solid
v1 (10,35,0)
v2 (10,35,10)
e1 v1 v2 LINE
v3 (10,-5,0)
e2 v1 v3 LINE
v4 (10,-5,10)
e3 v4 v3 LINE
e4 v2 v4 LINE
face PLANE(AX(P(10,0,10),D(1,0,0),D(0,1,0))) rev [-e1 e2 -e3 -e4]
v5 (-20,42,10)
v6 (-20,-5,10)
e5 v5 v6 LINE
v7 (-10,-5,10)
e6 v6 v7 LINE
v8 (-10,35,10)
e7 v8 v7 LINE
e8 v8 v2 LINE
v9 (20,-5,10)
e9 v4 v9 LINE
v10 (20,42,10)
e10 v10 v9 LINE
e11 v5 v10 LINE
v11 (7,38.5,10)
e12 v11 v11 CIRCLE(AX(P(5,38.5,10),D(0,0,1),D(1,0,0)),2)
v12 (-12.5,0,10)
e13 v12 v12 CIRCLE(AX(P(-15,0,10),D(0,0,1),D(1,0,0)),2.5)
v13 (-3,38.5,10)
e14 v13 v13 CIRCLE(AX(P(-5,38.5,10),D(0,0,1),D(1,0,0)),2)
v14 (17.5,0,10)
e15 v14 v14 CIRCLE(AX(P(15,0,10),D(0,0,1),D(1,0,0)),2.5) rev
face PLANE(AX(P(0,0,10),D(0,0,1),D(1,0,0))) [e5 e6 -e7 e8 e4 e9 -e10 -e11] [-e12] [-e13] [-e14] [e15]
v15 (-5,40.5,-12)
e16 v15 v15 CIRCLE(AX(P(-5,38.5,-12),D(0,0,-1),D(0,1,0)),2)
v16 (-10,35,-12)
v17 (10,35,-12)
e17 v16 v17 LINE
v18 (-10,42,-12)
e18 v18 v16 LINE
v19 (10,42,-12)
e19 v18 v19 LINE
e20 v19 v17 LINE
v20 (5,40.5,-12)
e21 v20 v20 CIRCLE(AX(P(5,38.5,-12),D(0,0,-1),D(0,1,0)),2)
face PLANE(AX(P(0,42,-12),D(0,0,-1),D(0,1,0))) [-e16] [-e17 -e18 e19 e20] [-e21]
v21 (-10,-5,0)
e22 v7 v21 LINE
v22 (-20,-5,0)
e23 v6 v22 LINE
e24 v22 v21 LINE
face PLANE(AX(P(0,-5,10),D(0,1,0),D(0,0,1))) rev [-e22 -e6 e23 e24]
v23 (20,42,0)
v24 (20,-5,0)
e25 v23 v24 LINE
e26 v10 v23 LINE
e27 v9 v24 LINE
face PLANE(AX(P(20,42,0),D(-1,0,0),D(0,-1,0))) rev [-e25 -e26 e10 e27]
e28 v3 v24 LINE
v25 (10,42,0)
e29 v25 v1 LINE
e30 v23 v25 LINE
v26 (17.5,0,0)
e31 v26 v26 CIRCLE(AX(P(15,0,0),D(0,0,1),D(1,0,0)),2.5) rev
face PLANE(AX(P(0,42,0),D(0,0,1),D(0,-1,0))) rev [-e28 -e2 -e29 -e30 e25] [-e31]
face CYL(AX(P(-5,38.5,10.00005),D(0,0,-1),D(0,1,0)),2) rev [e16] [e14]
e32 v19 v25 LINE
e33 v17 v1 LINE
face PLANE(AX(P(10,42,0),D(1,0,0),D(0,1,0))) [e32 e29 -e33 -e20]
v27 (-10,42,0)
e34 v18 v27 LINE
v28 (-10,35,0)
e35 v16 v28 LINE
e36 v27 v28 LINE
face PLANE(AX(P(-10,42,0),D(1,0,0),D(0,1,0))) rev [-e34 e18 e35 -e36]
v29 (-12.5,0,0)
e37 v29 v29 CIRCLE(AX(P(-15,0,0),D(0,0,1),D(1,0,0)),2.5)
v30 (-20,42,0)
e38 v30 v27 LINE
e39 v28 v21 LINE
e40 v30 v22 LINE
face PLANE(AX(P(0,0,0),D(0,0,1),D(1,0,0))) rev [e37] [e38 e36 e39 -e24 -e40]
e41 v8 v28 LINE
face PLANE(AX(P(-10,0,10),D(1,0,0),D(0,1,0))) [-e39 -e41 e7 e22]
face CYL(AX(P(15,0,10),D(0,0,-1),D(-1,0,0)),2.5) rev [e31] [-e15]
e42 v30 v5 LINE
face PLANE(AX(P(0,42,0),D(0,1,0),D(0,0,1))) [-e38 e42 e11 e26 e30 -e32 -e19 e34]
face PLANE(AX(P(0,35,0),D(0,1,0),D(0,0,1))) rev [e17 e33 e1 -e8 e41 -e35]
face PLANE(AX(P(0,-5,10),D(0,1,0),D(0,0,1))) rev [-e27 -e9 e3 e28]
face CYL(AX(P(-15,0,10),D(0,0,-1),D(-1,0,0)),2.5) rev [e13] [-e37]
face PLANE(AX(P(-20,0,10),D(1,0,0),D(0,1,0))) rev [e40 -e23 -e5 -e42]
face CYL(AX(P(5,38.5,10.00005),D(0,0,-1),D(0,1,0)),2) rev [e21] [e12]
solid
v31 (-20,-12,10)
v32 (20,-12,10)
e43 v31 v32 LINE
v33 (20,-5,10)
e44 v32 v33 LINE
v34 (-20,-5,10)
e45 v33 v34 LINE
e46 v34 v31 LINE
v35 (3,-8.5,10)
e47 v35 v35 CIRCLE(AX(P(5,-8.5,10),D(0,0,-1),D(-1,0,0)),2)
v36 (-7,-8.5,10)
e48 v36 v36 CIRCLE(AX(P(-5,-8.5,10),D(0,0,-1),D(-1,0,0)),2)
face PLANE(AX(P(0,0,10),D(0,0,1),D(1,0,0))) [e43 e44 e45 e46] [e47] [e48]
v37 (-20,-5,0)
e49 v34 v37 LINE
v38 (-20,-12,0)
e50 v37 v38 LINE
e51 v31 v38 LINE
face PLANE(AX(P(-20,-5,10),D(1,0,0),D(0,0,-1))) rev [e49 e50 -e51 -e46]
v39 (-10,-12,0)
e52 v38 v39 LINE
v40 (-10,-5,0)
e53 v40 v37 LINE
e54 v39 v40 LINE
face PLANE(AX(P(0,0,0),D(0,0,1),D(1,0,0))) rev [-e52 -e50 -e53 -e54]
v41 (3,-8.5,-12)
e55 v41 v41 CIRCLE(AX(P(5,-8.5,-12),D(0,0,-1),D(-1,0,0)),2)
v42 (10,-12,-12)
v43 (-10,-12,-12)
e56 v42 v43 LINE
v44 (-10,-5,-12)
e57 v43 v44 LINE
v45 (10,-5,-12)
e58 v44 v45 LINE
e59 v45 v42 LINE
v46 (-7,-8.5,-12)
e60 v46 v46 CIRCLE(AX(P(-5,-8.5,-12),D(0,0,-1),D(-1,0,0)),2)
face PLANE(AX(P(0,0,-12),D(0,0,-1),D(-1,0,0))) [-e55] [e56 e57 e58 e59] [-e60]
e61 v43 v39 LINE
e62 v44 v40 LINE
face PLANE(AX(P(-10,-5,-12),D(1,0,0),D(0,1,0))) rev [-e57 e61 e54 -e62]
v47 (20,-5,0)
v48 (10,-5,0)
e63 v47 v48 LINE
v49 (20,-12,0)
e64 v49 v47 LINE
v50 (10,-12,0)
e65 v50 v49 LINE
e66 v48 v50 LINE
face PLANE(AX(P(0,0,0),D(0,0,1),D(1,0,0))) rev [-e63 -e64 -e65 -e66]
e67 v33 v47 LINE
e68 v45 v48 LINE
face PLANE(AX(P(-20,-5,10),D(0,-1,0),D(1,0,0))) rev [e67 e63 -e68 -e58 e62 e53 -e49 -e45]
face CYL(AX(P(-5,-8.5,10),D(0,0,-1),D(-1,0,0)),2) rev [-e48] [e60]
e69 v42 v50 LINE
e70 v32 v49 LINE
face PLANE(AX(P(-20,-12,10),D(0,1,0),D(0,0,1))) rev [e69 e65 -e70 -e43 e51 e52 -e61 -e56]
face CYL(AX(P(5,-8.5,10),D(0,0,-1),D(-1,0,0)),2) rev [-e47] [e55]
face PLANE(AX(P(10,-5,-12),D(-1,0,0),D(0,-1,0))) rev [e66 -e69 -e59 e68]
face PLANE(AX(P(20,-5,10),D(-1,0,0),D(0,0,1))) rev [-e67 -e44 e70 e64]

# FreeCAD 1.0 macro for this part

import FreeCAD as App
import Part
import Sketcher


def add_polygon(sketch, points):
    """Adds a closed chain of lines whose ends are joined by coincident constraints."""
    first, n = sketch.GeometryCount, len(points)
    for a, b in zip(points, points[1:] + points[:1]):
        sketch.addGeometry(Part.LineSegment(App.Vector(*a, 0), App.Vector(*b, 0)), False)
    for i in range(n):
        sketch.addConstraint(Sketcher.Constraint("Coincident", first + i, 2, first + (i + 1) % n, 1))

doc = App.newDocument("Part")
body = doc.addObject("PartDesign::Body", "Body")

sketch1 = body.newObject("Sketcher::SketchObject", "Sketch")
sketch1.AttachmentSupport = (doc.getObject("XY_Plane"), [""])
sketch1.MapMode = "FlatFace"
add_polygon(sketch1, [(-20, 5), (-20, -5), (-10, -5), (-10, 5)])
sketch1.addGeometry(Part.Circle(App.Vector(-15, 0, 0), App.Vector(0, 0, 1), 2.5), False)
sketch1.addConstraint(Sketcher.Constraint("Vertical", 0))
sketch1.addConstraint(Sketcher.Constraint("Horizontal", 1))
sketch1.addConstraint(Sketcher.Constraint("Vertical", 2))
sketch1.addConstraint(Sketcher.Constraint("Horizontal", 3))
sketch1.addConstraint(Sketcher.Constraint("PointOnObject", 4, 3, -1))
sketch1.addConstraint(Sketcher.Constraint("Equal", 3, 0))
sketch1.addConstraint(Sketcher.Constraint("Diameter", 4, 5.0))
sketch1.addConstraint(Sketcher.Constraint("DistanceX", 1, 1, 1, 2, 10.0))
sketch1.addConstraint(Sketcher.Constraint("DistanceX", 4, 3, -1, 1, 15.0))
sketch1.addConstraint(Sketcher.Constraint("DistanceX", 0, 2, -1, 1, 20.0))
sketch1.addConstraint(Sketcher.Constraint("DistanceY", 0, 2, -1, 1, 5.0))
pad1 = body.newObject("PartDesign::Pad", "Pad")
pad1.Profile = sketch1
pad1.Length = 10
body2 = doc.addObject("PartDesign::Body", "Body001")

sketch2 = body2.newObject("Sketcher::SketchObject", "Sketch001")
sketch2.AttachmentSupport = (doc.getObject("XY_Plane001"), [""])
sketch2.MapMode = "FlatFace"
add_polygon(sketch2, [(10, 5), (10, -5), (20, -5), (20, 5)])
sketch2.addGeometry(Part.Circle(App.Vector(15, 0, 0), App.Vector(0, 0, 1), 2.5), False)
sketch2.addConstraint(Sketcher.Constraint("Vertical", 0))
sketch2.addConstraint(Sketcher.Constraint("Horizontal", 1))
sketch2.addConstraint(Sketcher.Constraint("Vertical", 2))
sketch2.addConstraint(Sketcher.Constraint("Horizontal", 3))
sketch2.addConstraint(Sketcher.Constraint("PointOnObject", 4, 3, -1))
sketch2.addConstraint(Sketcher.Constraint("Equal", 3, 0))
sketch2.addConstraint(Sketcher.Constraint("Diameter", 4, 5.0))
sketch2.addConstraint(Sketcher.Constraint("DistanceX", 1, 1, 1, 2, 10.0))
sketch2.addConstraint(Sketcher.Constraint("DistanceX", -1, 1, 4, 3, 15.0))
sketch2.addConstraint(Sketcher.Constraint("DistanceX", -1, 1, 0, 2, 10.0))
sketch2.addConstraint(Sketcher.Constraint("DistanceY", 0, 2, -1, 1, 5.0))
pad2 = body2.newObject("PartDesign::Pad", "Pad001")
pad2.Profile = sketch2
pad2.Length = 10
body3 = doc.addObject("PartDesign::Body", "Body002")

sketch3 = body3.newObject("Sketcher::SketchObject", "Sketch002")
sketch3.AttachmentSupport = (doc.getObject("XY_Plane002"), [""])
sketch3.MapMode = "FlatFace"
add_polygon(sketch3, [(-20, -5), (-20, -12), (20, -12), (20, -5)])
sketch3.addConstraint(Sketcher.Constraint("Vertical", 0))
sketch3.addConstraint(Sketcher.Constraint("Horizontal", 1))
sketch3.addConstraint(Sketcher.Constraint("Vertical", 2))
sketch3.addConstraint(Sketcher.Constraint("Horizontal", 3))
sketch3.addConstraint(Sketcher.Constraint("DistanceX", 1, 1, 1, 2, 40.0))
sketch3.addConstraint(Sketcher.Constraint("DistanceY", 0, 2, 0, 1, 7.0))
sketch3.addConstraint(Sketcher.Constraint("DistanceX", 0, 2, -1, 1, 20.0))
sketch3.addConstraint(Sketcher.Constraint("DistanceY", 0, 2, -1, 1, 12.0))
pad3 = body3.newObject("PartDesign::Pad", "Pad002")
pad3.Profile = sketch3
pad3.Length = 10

sketch4 = body3.newObject("Sketcher::SketchObject", "Sketch003")
sketch4.AttachmentSupport = (doc.getObject("XY_Plane002"), [""])
sketch4.MapMode = "FlatFace"
add_polygon(sketch4, [(10, -5), (10, -12), (-10, -12), (-10, -5)])
sketch4.addConstraint(Sketcher.Constraint("Vertical", 0))
sketch4.addConstraint(Sketcher.Constraint("Horizontal", 1))
sketch4.addConstraint(Sketcher.Constraint("Vertical", 2))
sketch4.addConstraint(Sketcher.Constraint("Horizontal", 3))
sketch4.addConstraint(Sketcher.Constraint("DistanceX", 1, 2, 1, 1, 20.0))
sketch4.addConstraint(Sketcher.Constraint("DistanceY", 0, 2, 0, 1, 7.0))
sketch4.addConstraint(Sketcher.Constraint("DistanceX", -1, 1, 0, 2, 10.0))
sketch4.addConstraint(Sketcher.Constraint("DistanceY", 0, 2, -1, 1, 12.0))
pad4 = body3.newObject("PartDesign::Pad", "Pad003")
pad4.Profile = sketch4
pad4.Length = 12
pad4.Reversed = True

sketch5 = body3.newObject("Sketcher::SketchObject", "Sketch004")
sketch5.AttachmentSupport = (doc.getObject("XY_Plane002"), [""])
sketch5.MapMode = "FlatFace"
sketch5.AttachmentOffset = App.Placement(App.Vector(0, 0, -12), App.Rotation())
sketch5.addGeometry(Part.Circle(App.Vector(5, -8.5, 0), App.Vector(0, 0, 1), 2), False)
sketch5.addGeometry(Part.Circle(App.Vector(-5, -8.5, 0), App.Vector(0, 0, 1), 2), False)
sketch5.addConstraint(Sketcher.Constraint("Equal", 0, 1))
sketch5.addConstraint(Sketcher.Constraint("Symmetric", 0, 3, 1, 3, -2))
sketch5.addConstraint(Sketcher.Constraint("Diameter", 0, 4.0))
sketch5.addConstraint(Sketcher.Constraint("DistanceX", -1, 1, 0, 3, 5.0))
sketch5.addConstraint(Sketcher.Constraint("DistanceY", 0, 3, -1, 1, 8.5))
pocket1 = body3.newObject("PartDesign::Pocket", "Pocket")
pocket1.Profile = sketch5
pocket1.Type = "ThroughAll"
pocket1.Reversed = True
body.AllowCompound = True
doc.recompute()

boolean = body.newObject("PartDesign::Boolean", "Boolean")
boolean.Type = "Fuse"
boolean.addObjects([body2])

sketch6 = body.newObject("Sketcher::SketchObject", "Sketch005")
sketch6.AttachmentSupport = (doc.getObject("XZ_Plane"), [""])
sketch6.MapMode = "FlatFace"
sketch6.AttachmentOffset = App.Placement(App.Vector(0, 0, -5), App.Rotation())
add_polygon(sketch6, [(-20, 0), (-20, 10), (-10, 10), (-10, 0)])
add_polygon(sketch6, [(10, 0), (10, 10), (20, 10), (20, 0)])
sketch6.addConstraint(Sketcher.Constraint("Vertical", 0))
sketch6.addConstraint(Sketcher.Constraint("Horizontal", 1))
sketch6.addConstraint(Sketcher.Constraint("Vertical", 2))
sketch6.addConstraint(Sketcher.Constraint("Horizontal", 3))
sketch6.addConstraint(Sketcher.Constraint("Vertical", 4))
sketch6.addConstraint(Sketcher.Constraint("Horizontal", 5))
sketch6.addConstraint(Sketcher.Constraint("Vertical", 6))
sketch6.addConstraint(Sketcher.Constraint("Horizontal", 7))
sketch6.addConstraint(Sketcher.Constraint("Symmetric", 3, 2, 6, 2, -1, 1))
sketch6.addConstraint(Sketcher.Constraint("Symmetric", 1, 2, 4, 2, -2))
sketch6.addConstraint(Sketcher.Constraint("PointOnObject", 2, 2, -1))
sketch6.addConstraint(Sketcher.Constraint("Equal", 7, 0))
sketch6.addConstraint(Sketcher.Constraint("DistanceX", 1, 1, 1, 2, 10.0))
sketch6.addConstraint(Sketcher.Constraint("DistanceX", 0, 2, -1, 1, 20.0))
pad5 = body.newObject("PartDesign::Pad", "Pad004")
pad5.Profile = sketch6
pad5.Length = 30
pad5.Reversed = True

sketch7 = body.newObject("Sketcher::SketchObject", "Sketch006")
sketch7.AttachmentSupport = (doc.getObject("XZ_Plane"), [""])
sketch7.MapMode = "FlatFace"
sketch7.AttachmentOffset = App.Placement(App.Vector(0, 0, -35), App.Rotation())
add_polygon(sketch7, [(-10, -12), (-10, 0), (-20, 0), (-20, 10), (20, 10), (20, 0), (10, 0), (10, -12)])
sketch7.addConstraint(Sketcher.Constraint("Vertical", 0))
sketch7.addConstraint(Sketcher.Constraint("Horizontal", 1))
sketch7.addConstraint(Sketcher.Constraint("Vertical", 2))
sketch7.addConstraint(Sketcher.Constraint("Horizontal", 3))
sketch7.addConstraint(Sketcher.Constraint("Vertical", 4))
sketch7.addConstraint(Sketcher.Constraint("Horizontal", 5))
sketch7.addConstraint(Sketcher.Constraint("Vertical", 6))
sketch7.addConstraint(Sketcher.Constraint("Horizontal", 7))
sketch7.addConstraint(Sketcher.Constraint("Symmetric", 1, 2, 4, 2, -1, 1))
sketch7.addConstraint(Sketcher.Constraint("Symmetric", 0, 2, 5, 2, -2))
sketch7.addConstraint(Sketcher.Constraint("Equal", 5, 2))
sketch7.addConstraint(Sketcher.Constraint("DistanceX", 1, 2, 1, 1, 10.0))
sketch7.addConstraint(Sketcher.Constraint("DistanceX", 3, 1, 3, 2, 40.0))
sketch7.addConstraint(Sketcher.Constraint("DistanceY", 0, 1, 0, 2, 12.0))
pad6 = body.newObject("PartDesign::Pad", "Pad005")
pad6.Profile = sketch7
pad6.Length = 7
pad6.Reversed = True

sketch8 = body.newObject("Sketcher::SketchObject", "Sketch007")
sketch8.AttachmentSupport = (doc.getObject("XY_Plane"), [""])
sketch8.MapMode = "FlatFace"
sketch8.AttachmentOffset = App.Placement(App.Vector(0, 0, -12), App.Rotation())
sketch8.addGeometry(Part.Circle(App.Vector(5, 38.5, 0), App.Vector(0, 0, 1), 2), False)
sketch8.addGeometry(Part.Circle(App.Vector(-5, 38.5, 0), App.Vector(0, 0, 1), 2), False)
sketch8.addConstraint(Sketcher.Constraint("Equal", 0, 1))
sketch8.addConstraint(Sketcher.Constraint("Symmetric", 0, 3, 1, 3, -2))
sketch8.addConstraint(Sketcher.Constraint("Diameter", 0, 4.0))
sketch8.addConstraint(Sketcher.Constraint("DistanceX", -1, 1, 0, 3, 5.0))
sketch8.addConstraint(Sketcher.Constraint("DistanceY", -1, 1, 0, 3, 38.5))
pocket2 = body.newObject("PartDesign::Pocket", "Pocket001")
pocket2.Profile = sketch8
pocket2.Type = "ThroughAll"
pocket2.Reversed = True

doc.recompute()
